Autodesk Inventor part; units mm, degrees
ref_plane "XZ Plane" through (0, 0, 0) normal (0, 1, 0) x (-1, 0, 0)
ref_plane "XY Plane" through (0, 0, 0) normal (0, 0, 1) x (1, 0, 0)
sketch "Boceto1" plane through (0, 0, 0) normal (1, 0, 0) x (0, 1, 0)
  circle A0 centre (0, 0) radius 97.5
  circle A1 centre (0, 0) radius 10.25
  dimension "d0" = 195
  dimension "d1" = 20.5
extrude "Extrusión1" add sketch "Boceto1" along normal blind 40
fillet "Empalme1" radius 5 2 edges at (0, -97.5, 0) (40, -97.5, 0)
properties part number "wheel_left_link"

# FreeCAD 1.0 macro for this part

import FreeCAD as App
import Part
import Sketcher


def edges_at(feature, points):
    """Names of the edges that pass closest to the given points."""
    edges = feature.Shape.Edges
    near = lambda p: min(range(len(edges)), key=lambda i: edges[i].distToShape(Part.Vertex(*p))[0])
    return sorted({f"Edge{near(p) + 1}" for p in points})

doc = App.newDocument("Part")
body = doc.addObject("PartDesign::Body", "Body")

# Sketch on YZ plane
sketch1 = doc.addObject("Sketcher::SketchObject", "Sketch")
body.addObject(sketch1)
sketch1.AttachmentSupport = (doc.YZ_Plane, [""])
sketch1.MapMode = "FlatFace"
sketch1.addGeometry([
    Part.Circle(App.Vector(0, 0, 0), App.Vector(0, 0, 1), 98),
    Part.Circle(App.Vector(0, 0, 0), App.Vector(0, 0, 1), 10),
], False)
sketch1.addConstraint([
    Sketcher.Constraint("Coincident", 0, 3, -1, 1),
    Sketcher.Constraint("Coincident", 1, 3, -1, 1),
    Sketcher.Constraint("Diameter", 0, 195.0),
    Sketcher.Constraint("Diameter", 1, 20.5),
])
pad1 = doc.addObject("PartDesign::Pad", "Pad")
body.addObject(pad1)
pad1.Profile = sketch1
pad1.Length = 40
doc.recompute()

fillet = doc.addObject("PartDesign::Fillet", "Fillet")
body.addObject(fillet)
fillet.Base = (pad1, edges_at(pad1, [(0, -97.5, 0), (40, -97.5, 0)]))
fillet.Radius = 5

doc.recompute()
